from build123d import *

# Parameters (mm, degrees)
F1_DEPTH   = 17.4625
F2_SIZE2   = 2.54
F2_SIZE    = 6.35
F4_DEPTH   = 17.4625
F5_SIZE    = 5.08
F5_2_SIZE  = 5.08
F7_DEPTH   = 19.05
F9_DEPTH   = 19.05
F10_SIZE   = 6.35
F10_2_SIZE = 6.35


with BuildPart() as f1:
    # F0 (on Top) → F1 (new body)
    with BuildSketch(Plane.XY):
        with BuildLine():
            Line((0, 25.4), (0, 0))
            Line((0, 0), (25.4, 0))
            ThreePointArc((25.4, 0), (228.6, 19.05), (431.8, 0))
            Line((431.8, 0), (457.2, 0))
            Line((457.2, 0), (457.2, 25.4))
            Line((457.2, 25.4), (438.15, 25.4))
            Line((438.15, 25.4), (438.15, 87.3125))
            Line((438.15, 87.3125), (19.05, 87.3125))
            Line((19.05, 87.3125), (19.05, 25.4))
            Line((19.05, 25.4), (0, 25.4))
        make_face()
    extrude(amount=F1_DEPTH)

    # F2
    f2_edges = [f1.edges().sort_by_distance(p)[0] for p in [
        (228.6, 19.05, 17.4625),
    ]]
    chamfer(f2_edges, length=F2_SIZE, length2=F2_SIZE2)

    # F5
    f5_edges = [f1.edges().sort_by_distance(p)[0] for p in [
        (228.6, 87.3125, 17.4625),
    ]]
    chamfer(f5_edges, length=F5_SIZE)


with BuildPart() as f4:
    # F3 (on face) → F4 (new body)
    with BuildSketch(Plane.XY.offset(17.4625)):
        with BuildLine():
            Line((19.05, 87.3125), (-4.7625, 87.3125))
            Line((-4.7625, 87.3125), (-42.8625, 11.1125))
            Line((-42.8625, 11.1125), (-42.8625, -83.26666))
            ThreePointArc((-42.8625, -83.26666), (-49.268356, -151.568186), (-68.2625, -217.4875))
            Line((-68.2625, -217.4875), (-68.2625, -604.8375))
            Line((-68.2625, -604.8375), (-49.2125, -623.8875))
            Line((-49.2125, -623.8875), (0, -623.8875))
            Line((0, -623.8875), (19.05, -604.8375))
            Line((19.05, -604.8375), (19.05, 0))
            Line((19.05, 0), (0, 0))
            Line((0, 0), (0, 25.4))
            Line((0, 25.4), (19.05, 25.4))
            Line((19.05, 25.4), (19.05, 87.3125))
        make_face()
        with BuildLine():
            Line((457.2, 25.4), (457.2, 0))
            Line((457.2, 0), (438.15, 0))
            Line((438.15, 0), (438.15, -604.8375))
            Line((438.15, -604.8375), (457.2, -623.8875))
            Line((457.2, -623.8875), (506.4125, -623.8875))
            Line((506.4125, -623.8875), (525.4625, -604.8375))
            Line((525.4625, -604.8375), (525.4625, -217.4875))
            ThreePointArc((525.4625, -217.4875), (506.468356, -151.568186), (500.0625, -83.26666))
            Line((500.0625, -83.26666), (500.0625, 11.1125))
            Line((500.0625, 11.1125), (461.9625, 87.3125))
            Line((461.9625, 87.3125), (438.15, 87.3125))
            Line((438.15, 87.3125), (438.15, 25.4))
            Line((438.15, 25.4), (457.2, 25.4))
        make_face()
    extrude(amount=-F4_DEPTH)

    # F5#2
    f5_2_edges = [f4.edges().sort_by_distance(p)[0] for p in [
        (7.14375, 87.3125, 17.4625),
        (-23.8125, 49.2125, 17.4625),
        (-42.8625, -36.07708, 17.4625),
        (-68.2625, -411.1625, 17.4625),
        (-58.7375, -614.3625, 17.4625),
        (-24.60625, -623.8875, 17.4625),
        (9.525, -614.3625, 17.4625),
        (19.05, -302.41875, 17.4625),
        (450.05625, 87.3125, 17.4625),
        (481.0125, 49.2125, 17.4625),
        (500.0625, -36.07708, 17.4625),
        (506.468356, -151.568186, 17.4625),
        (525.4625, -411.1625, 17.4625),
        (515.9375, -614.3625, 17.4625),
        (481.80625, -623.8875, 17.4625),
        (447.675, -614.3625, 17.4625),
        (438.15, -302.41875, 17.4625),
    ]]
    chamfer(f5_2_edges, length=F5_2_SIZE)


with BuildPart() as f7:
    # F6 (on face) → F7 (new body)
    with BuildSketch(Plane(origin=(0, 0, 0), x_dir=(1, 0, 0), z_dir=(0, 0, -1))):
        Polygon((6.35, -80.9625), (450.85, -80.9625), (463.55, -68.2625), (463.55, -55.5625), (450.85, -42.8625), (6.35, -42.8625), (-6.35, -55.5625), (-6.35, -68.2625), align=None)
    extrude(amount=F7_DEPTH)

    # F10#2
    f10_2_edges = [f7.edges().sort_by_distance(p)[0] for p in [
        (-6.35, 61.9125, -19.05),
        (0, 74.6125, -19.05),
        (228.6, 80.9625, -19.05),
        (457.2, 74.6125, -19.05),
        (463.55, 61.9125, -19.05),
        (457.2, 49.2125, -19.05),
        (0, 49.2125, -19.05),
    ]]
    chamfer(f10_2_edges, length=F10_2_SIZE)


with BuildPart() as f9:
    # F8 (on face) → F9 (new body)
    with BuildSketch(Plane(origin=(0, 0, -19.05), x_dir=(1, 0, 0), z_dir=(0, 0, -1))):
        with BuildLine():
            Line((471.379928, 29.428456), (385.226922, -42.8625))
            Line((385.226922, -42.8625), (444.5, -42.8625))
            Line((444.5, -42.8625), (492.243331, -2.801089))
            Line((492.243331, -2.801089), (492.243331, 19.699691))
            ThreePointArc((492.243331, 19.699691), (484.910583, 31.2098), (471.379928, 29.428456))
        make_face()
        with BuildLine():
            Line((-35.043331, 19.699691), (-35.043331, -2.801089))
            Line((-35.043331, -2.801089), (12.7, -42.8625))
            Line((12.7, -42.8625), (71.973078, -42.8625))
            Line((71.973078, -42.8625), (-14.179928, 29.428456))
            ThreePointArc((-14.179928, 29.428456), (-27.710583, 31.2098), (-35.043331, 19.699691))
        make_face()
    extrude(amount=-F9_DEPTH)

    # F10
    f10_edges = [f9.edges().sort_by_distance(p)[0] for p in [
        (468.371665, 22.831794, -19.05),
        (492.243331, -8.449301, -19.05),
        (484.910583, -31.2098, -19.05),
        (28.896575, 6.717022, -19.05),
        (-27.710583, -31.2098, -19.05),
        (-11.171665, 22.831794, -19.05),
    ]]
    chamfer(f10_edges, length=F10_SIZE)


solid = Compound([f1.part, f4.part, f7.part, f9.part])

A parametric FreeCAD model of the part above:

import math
import FreeCAD as App
import Part
import Sketcher
from FreeCAD import Vector
Q = App.Units.Quantity


def edges_at(feature, points):
    """Names of the edges that pass closest to the given points."""
    edges = feature.Shape.Edges
    near = lambda p: min(range(len(edges)), key=lambda i: edges[i].distToShape(Part.Vertex(*p))[0])
    return sorted({f"Edge{near(p) + 1}" for p in points})


def add_polygon(sketch, points):
    """Adds a closed chain of lines whose ends are joined by coincident constraints."""
    first, n = sketch.GeometryCount, len(points)
    for a, b in zip(points, points[1:] + points[:1]):
        sketch.addGeometry(Part.LineSegment(App.Vector(*a, 0), App.Vector(*b, 0)), False)
    for i in range(n):
        sketch.addConstraint(Sketcher.Constraint("Coincident", first + i, 2, first + (i + 1) % n, 1))

doc = App.newDocument("Part")
body = doc.addObject("PartDesign::Body", "Body")

sketch1 = body.newObject("Sketcher::SketchObject", "Sketch")
sketch1.AttachmentSupport = (doc.getObject("XY_Plane"), [""])
sketch1.MapMode = "FlatFace"
sketch1.addGeometry([
    Part.LineSegment(Vector(0, 25, 0), Vector(0, 0, 0)),
    Part.LineSegment(Vector(0, 0, 0), Vector(25, 0, 0)),
    Part.ArcOfCircle(Part.Circle(Vector(229, -1074, 0), Vector(0, 0, 1), 1093), math.radians(79), math.radians(101)),
    Part.LineSegment(Vector(432, 0, 0), Vector(457, 0, 0)),
    Part.LineSegment(Vector(457, 0, 0), Vector(457, 25, 0)),
    Part.LineSegment(Vector(457, 25, 0), Vector(438, 25, 0)),
    Part.LineSegment(Vector(438, 25, 0), Vector(438, 87, 0)),
    Part.LineSegment(Vector(438, 87, 0), Vector(19, 87, 0)),
    Part.LineSegment(Vector(19, 87, 0), Vector(19, 25, 0)),
    Part.LineSegment(Vector(19, 25, 0), Vector(0, 25, 0)),
], False)
sketch1.addConstraint([
    Sketcher.Constraint("Coincident", 0, 2, 1, 1),
    Sketcher.Constraint("Coincident", 1, 2, 2, 2),
    Sketcher.Constraint("Coincident", 2, 1, 3, 1),
    Sketcher.Constraint("Coincident", 3, 2, 4, 1),
    Sketcher.Constraint("Coincident", 4, 2, 5, 1),
    Sketcher.Constraint("Coincident", 5, 2, 6, 1),
    Sketcher.Constraint("Coincident", 6, 2, 7, 1),
    Sketcher.Constraint("Coincident", 7, 2, 8, 1),
    Sketcher.Constraint("Coincident", 8, 2, 9, 1),
    Sketcher.Constraint("Coincident", 9, 2, 0, 1),
    Sketcher.Constraint("Vertical", 0),
    Sketcher.Constraint("Horizontal", 1),
    Sketcher.Constraint("Horizontal", 3),
    Sketcher.Constraint("Vertical", 4),
    Sketcher.Constraint("Horizontal", 5),
    Sketcher.Constraint("Vertical", 6),
    Sketcher.Constraint("Horizontal", 7),
    Sketcher.Constraint("Vertical", 8),
    Sketcher.Constraint("Horizontal", 9),
    Sketcher.Constraint("Coincident", 0, 2, -1, 1),
    Sketcher.Constraint("PointOnObject", 3, 2, -1),
    Sketcher.Constraint("Horizontal", 5, 2, 8, 2),
    Sketcher.Constraint("Equal", 1, 3),
    Sketcher.Constraint("Equal", 5, 9),
    Sketcher.Constraint("Equal", 3, 0),
    Sketcher.Constraint("DistanceX", 1, 1, 1, 2, Q("1 in")),
    Sketcher.Constraint("DistanceX", 7, 2, 7, 1, Q("16.5 in")),
    Sketcher.Constraint("DistanceX", -1, 1, 2, 3, Q("9 in")),
    Sketcher.Constraint("DistanceY", 6, 1, 6, 2, Q("2.4375 in")),
    Sketcher.Constraint("Radius", 2, Q("1093.258333 mm")),
])
pad1 = body.newObject("PartDesign::Pad", "Pad")
pad1.Profile = sketch1
pad1.Length = Q("0.6875 in")
doc.recompute()

chamfer = body.newObject("PartDesign::Chamfer", "Chamfer")
chamfer.Base = (pad1, edges_at(pad1, [(228.6, 19.05, 17.462)]))
chamfer.ChamferType = "Two distances"
chamfer.Size = Q("0.25 in")
chamfer.Size2 = Q("0.1 in")
doc.recompute()

chamfer2 = body.newObject("PartDesign::Chamfer", "Chamfer001")
chamfer2.Base = (chamfer, edges_at(chamfer, [(228.6, 87.312, 17.462)]))
chamfer2.Size = Q("0.2 in")
body2 = doc.addObject("PartDesign::Body", "Body001")
body2.AllowCompound = True

sketch2 = body2.newObject("Sketcher::SketchObject", "Sketch001")
sketch2.AttachmentSupport = (doc.getObject("XY_Plane001"), [""])
sketch2.MapMode = "FlatFace"
sketch2.AttachmentOffset = App.Placement(Vector(0, 0, 0.6875 * 25.4), App.Rotation())
sketch2.addGeometry([
    Part.LineSegment(Vector(19, 87, 0), Vector(-5, 87, 0)),
    Part.LineSegment(Vector(-5, 87, 0), Vector(-43, 11, 0)),
    Part.LineSegment(Vector(-43, 11, 0), Vector(-43, -83, 0)),
    Part.ArcOfCircle(Part.Circle(Vector(-410, -83, 0), Vector(0, 0, 1), 367), math.radians(-21), math.radians(0)),
    Part.LineSegment(Vector(-68, -217, 0), Vector(-68, -605, 0)),
    Part.LineSegment(Vector(-68, -605, 0), Vector(-49, -624, 0)),
    Part.LineSegment(Vector(-49, -624, 0), Vector(0, -624, 0)),
    Part.LineSegment(Vector(0, -624, 0), Vector(19, -605, 0)),
    Part.LineSegment(Vector(19, -605, 0), Vector(19, 0, 0)),
    Part.LineSegment(Vector(19, 0, 0), Vector(0, 0, 0)),
    Part.LineSegment(Vector(0, 0, 0), Vector(0, 25, 0)),
    Part.LineSegment(Vector(0, 25, 0), Vector(19, 25, 0)),
    Part.LineSegment(Vector(19, 25, 0), Vector(19, 87, 0)),
    Part.LineSegment(Vector(457, 25, 0), Vector(457, 0, 0)),
    Part.LineSegment(Vector(457, 0, 0), Vector(438, 0, 0)),
    Part.LineSegment(Vector(438, 0, 0), Vector(438, -605, 0)),
    Part.LineSegment(Vector(438, -605, 0), Vector(457, -624, 0)),
    Part.LineSegment(Vector(457, -624, 0), Vector(506, -624, 0)),
    Part.LineSegment(Vector(506, -624, 0), Vector(525, -605, 0)),
    Part.LineSegment(Vector(525, -605, 0), Vector(525, -217, 0)),
    Part.ArcOfCircle(Part.Circle(Vector(867, -83, 0), Vector(0, 0, 1), 367), math.radians(-180), math.radians(-159)),
    Part.LineSegment(Vector(500, -83, 0), Vector(500, 11, 0)),
    Part.LineSegment(Vector(500, 11, 0), Vector(462, 87, 0)),
    Part.LineSegment(Vector(462, 87, 0), Vector(438, 87, 0)),
    Part.LineSegment(Vector(438, 87, 0), Vector(438, 25, 0)),
    Part.LineSegment(Vector(438, 25, 0), Vector(457, 25, 0)),
], False)
sketch2.addConstraint([
    Sketcher.Constraint("Coincident", 0, 2, 1, 1),
    Sketcher.Constraint("Coincident", 1, 2, 2, 1),
    Sketcher.Constraint("Tangent", 2, 2, 3, 2),
    Sketcher.Constraint("Coincident", 3, 1, 4, 1),
    Sketcher.Constraint("Coincident", 4, 2, 5, 1),
    Sketcher.Constraint("Coincident", 5, 2, 6, 1),
    Sketcher.Constraint("Coincident", 6, 2, 7, 1),
    Sketcher.Constraint("Coincident", 7, 2, 8, 1),
    Sketcher.Constraint("Coincident", 8, 2, 9, 1),
    Sketcher.Constraint("Coincident", 9, 2, 10, 1),
    Sketcher.Constraint("Coincident", 10, 2, 11, 1),
    Sketcher.Constraint("Coincident", 11, 2, 12, 1),
    Sketcher.Constraint("Coincident", 12, 2, 0, 1),
    Sketcher.Constraint("Coincident", 13, 2, 14, 1),
    Sketcher.Constraint("Coincident", 14, 2, 15, 1),
    Sketcher.Constraint("Coincident", 15, 2, 16, 1),
    Sketcher.Constraint("Coincident", 16, 2, 17, 1),
    Sketcher.Constraint("Coincident", 17, 2, 18, 1),
    Sketcher.Constraint("Coincident", 18, 2, 19, 1),
    Sketcher.Constraint("Coincident", 19, 2, 20, 2),
    Sketcher.Constraint("Tangent", 20, 1, 21, 1),
    Sketcher.Constraint("Coincident", 21, 2, 22, 1),
    Sketcher.Constraint("Coincident", 22, 2, 23, 1),
    Sketcher.Constraint("Coincident", 23, 2, 24, 1),
    Sketcher.Constraint("Coincident", 24, 2, 25, 1),
    Sketcher.Constraint("Coincident", 25, 2, 13, 1),
    Sketcher.Constraint("Horizontal", 0),
    Sketcher.Constraint("Vertical", 2),
    Sketcher.Constraint("Vertical", 4),
    Sketcher.Constraint("Horizontal", 6),
    Sketcher.Constraint("Vertical", 8),
    Sketcher.Constraint("Horizontal", 9),
    Sketcher.Constraint("Vertical", 10),
    Sketcher.Constraint("Horizontal", 11),
    Sketcher.Constraint("Vertical", 12),
    Sketcher.Constraint("Vertical", 13),
    Sketcher.Constraint("Horizontal", 14),
    Sketcher.Constraint("Vertical", 15),
    Sketcher.Constraint("Horizontal", 17),
    Sketcher.Constraint("Vertical", 19),
    Sketcher.Constraint("Vertical", 21),
    Sketcher.Constraint("Horizontal", 23),
    Sketcher.Constraint("Vertical", 24),
    Sketcher.Constraint("Horizontal", 25),
    Sketcher.Constraint("Coincident", 9, 2, -1, 1),
    Sketcher.Constraint("Equal", 3, 20),
    Sketcher.Constraint("PointOnObject", 6, 2, -2),
    Sketcher.Constraint("PointOnObject", 13, 2, -1),
    Sketcher.Constraint("Perpendicular", 5, 7),
    Sketcher.Constraint("Perpendicular", 7, 16),
    Sketcher.Constraint("Perpendicular", 16, 18),
    Sketcher.Constraint("Horizontal", 3, 3, 20, 3),
    Sketcher.Constraint("Horizontal", 4, 2, 7, 2),
    Sketcher.Constraint("Horizontal", 7, 2, 15, 2),
    Sketcher.Constraint("Horizontal", 6, 2, 16, 2),
    Sketcher.Constraint("Horizontal", 15, 2, 18, 2),
    Sketcher.Constraint("Horizontal", 3, 1, 19, 2),
    Sketcher.Constraint("Horizontal", 1, 2, 21, 2),
    Sketcher.Constraint("Horizontal", 12, 2, 22, 2),
    Sketcher.Constraint("Horizontal", 11, 2, 24, 2),
    Sketcher.Constraint("Vertical", 8, 2, 11, 2),
    Sketcher.Constraint("Vertical", 13, 2, 16, 2),
    Sketcher.Constraint("Vertical", 15, 2, 23, 2),
    Sketcher.Constraint("Equal", 11, 14),
    Sketcher.Constraint("Equal", 6, 17),
    Sketcher.Constraint("Equal", 0, 23),
    Sketcher.Constraint("DistanceY", 10, 1, 10, 2, Q("1 in")),
    Sketcher.Constraint("DistanceX", -1, 1, 13, 2, Q("18 in")),
    Sketcher.Constraint("DistanceY", 1, 2, 0, 2, Q("3 in")),
    Sketcher.Constraint("DistanceX", 3, 1, 2, 2, Q("1 in")),
    Sketcher.Constraint("DistanceY", 5, 2, 1, 2, Q("25 in")),
    Sketcher.Constraint("DistanceY", 19, 2, 21, 2, Q("9 in")),
    Sketcher.Constraint("DistanceX", 9, 2, 9, 1, Q("0.75 in")),
    Sketcher.Constraint("DistanceX", 1, 2, 0, 2, Q("1.5 in")),
    Sketcher.Constraint("DistanceX", 0, 2, 0, 1, Q("0.9375 in")),
    Sketcher.Constraint("DistanceY", 8, 1, 8, 2, Q("23.8125 in")),
    Sketcher.Constraint("Radius", 3, Q("367.330609 mm")),
])
pad2 = body2.newObject("PartDesign::Pad", "Pad001")
pad2.Profile = sketch2
pad2.Length = Q("0.6875 in")
pad2.Reversed = True
doc.recompute()

chamfer3 = body2.newObject("PartDesign::Chamfer", "Chamfer002")
chamfer3.Base = (pad2, edges_at(pad2, [
    (7.144, 87.312, 17.462),
    (-23.812, 49.212, 17.462),
    (-42.862, -36.077, 17.462),
    (-68.263, -411.163, 17.462),
    (-58.737, -614.362, 17.462),
    (-24.606, -623.888, 17.462),
    (9.525, -614.362, 17.462),
    (19.05, -302.419, 17.462),
    (450.056, 87.312, 17.462),
    (481.012, 49.212, 17.462),
    (500.062, -36.077, 17.462),
    (506.468, -151.568, 17.462),
    (525.462, -411.163, 17.462),
    (515.938, -614.362, 17.462),
    (481.806, -623.888, 17.462),
    (447.675, -614.362, 17.462),
    (438.15, -302.419, 17.462),
]))
chamfer3.Size = Q("0.2 in")
body3 = doc.addObject("PartDesign::Body", "Body002")

sketch3 = body3.newObject("Sketcher::SketchObject", "Sketch002")
sketch3.AttachmentSupport = (doc.getObject("XY_Plane002"), [""])
sketch3.MapMode = "FlatFace"
add_polygon(sketch3, [(6, 81), (451, 81), (464, 68), (464, 56), (451, 43), (6, 43), (-6, 56), (-6, 68)])
sketch3.addConstraint([
    Sketcher.Constraint("Horizontal", 0),
    Sketcher.Constraint("Vertical", 2),
    Sketcher.Constraint("Horizontal", 4),
    Sketcher.Constraint("Vertical", 6),
    Sketcher.Constraint("Perpendicular", 1, 3),
    Sketcher.Constraint("Perpendicular", 3, 5),
    Sketcher.Constraint("Perpendicular", 5, 7),
    Sketcher.Constraint("Horizontal", 2, 2, 5, 2),
    Sketcher.Constraint("Horizontal", 1, 2, 6, 2),
    Sketcher.Constraint("Vertical", 0, 2, 3, 2),
    Sketcher.Constraint("Vertical", 4, 2, 7, 2),
    Sketcher.Constraint("DistanceX", 0, 1, 0, 2, Q("17.5 in")),
    Sketcher.Constraint("DistanceY", 2, 2, 2, 1, Q("0.5 in")),
    Sketcher.Constraint("DistanceY", 2, 2, 0, 2, Q("1 in")),
    Sketcher.Constraint("DistanceX", -1, 1, 0, 2, Q("17.75 in")),
    Sketcher.Constraint("DistanceY", -1, 1, 0, 2, Q("3.1875 in")),
])
pad3 = body3.newObject("PartDesign::Pad", "Pad002")
pad3.Profile = sketch3
pad3.Length = Q("0.75 in")
pad3.Reversed = True
doc.recompute()

chamfer4 = body3.newObject("PartDesign::Chamfer", "Chamfer003")
chamfer4.Base = (pad3, edges_at(pad3, [
    (-6.35, 61.913, -19.05),
    (0, 74.612, -19.05),
    (228.6, 80.963, -19.05),
    (457.2, 74.612, -19.05),
    (463.55, 61.913, -19.05),
    (457.2, 49.212, -19.05),
    (0, 49.212, -19.05),
]))
chamfer4.Size = Q("0.25 in")
body4 = doc.addObject("PartDesign::Body", "Body003")
body4.AllowCompound = True

sketch4 = body4.newObject("Sketcher::SketchObject", "Sketch003")
sketch4.AttachmentSupport = (doc.getObject("XY_Plane003"), [""])
sketch4.MapMode = "FlatFace"
sketch4.AttachmentOffset = App.Placement(Vector(0, 0, -0.75 * 25.4), App.Rotation())
sketch4.addGeometry([
    Part.LineSegment(Vector(471, -29, 0), Vector(385, 43, 0)),
    Part.LineSegment(Vector(385, 43, 0), Vector(444, 43, 0)),
    Part.LineSegment(Vector(444, 43, 0), Vector(492, 3, 0)),
    Part.LineSegment(Vector(492, 3, 0), Vector(492, -20, 0)),
    Part.ArcOfCircle(Part.Circle(Vector(480, -20, 0), Vector(0, 0, 1), 13), math.radians(-130), math.radians(0)),
    Part.LineSegment(Vector(-35, -20, 0), Vector(-35, 3, 0)),
    Part.LineSegment(Vector(-35, 3, 0), Vector(13, 43, 0)),
    Part.LineSegment(Vector(13, 43, 0), Vector(72, 43, 0)),
    Part.LineSegment(Vector(72, 43, 0), Vector(-14, -29, 0)),
    Part.ArcOfCircle(Part.Circle(Vector(-22, -20, 0), Vector(0, 0, 1), 13), math.radians(-180), math.radians(-50)),
], False)
sketch4.addConstraint([
    Sketcher.Constraint("Coincident", 0, 2, 1, 1),
    Sketcher.Constraint("Coincident", 1, 2, 2, 1),
    Sketcher.Constraint("Coincident", 2, 2, 3, 1),
    Sketcher.Constraint("Tangent", 3, 2, 4, 2),
    Sketcher.Constraint("Tangent", 4, 1, 0, 1),
    Sketcher.Constraint("Coincident", 5, 2, 6, 1),
    Sketcher.Constraint("Coincident", 6, 2, 7, 1),
    Sketcher.Constraint("Coincident", 7, 2, 8, 1),
    Sketcher.Constraint("Tangent", 8, 2, 9, 2),
    Sketcher.Constraint("Tangent", 9, 1, 5, 1),
    Sketcher.Constraint("Horizontal", 1),
    Sketcher.Constraint("Vertical", 3),
    Sketcher.Constraint("Vertical", 5),
    Sketcher.Constraint("Horizontal", 7),
    Sketcher.Constraint("Equal", 4, 9),
    Sketcher.Constraint("Parallel", 0, 2),
    Sketcher.Constraint("Parallel", 6, 8),
    Sketcher.Constraint("Horizontal", 4, 3, 9, 3),
    Sketcher.Constraint("Horizontal", 2, 2, 5, 2),
    Sketcher.Constraint("Horizontal", 1, 2, 6, 2),
    Sketcher.Constraint("Horizontal", 4, 1, 8, 2),
    Sketcher.Constraint("Radius", 4, Q("0.5 in")),
    Sketcher.Constraint("Angle", 0, Q("140 deg")),
    Sketcher.Constraint("DistanceX", 6, 2, 1, 2, Q("17 in")),
    Sketcher.Constraint("DistanceX", -1, 1, 1, 2, Q("17.5 in")),
    Sketcher.Constraint("DistanceY", -1, 1, 0, 2, Q("1.6875 in")),
    Sketcher.Constraint("DistanceY", 3, 2, 3, 1, Q("22.50078 mm")),
    Sketcher.Constraint("DistanceX", -1, 1, 4, 3, Q("479.543331 mm")),
])
pad4 = body4.newObject("PartDesign::Pad", "Pad003")
pad4.Profile = sketch4
pad4.Length = Q("0.75 in")
doc.recompute()

chamfer5 = body4.newObject("PartDesign::Chamfer", "Chamfer004")
chamfer5.Base = (pad4, edges_at(pad4, [
    (468.372, 22.832, -19.05),
    (492.243, -8.449, -19.05),
    (484.911, -31.21, -19.05),
    (28.897, 6.717, -19.05),
    (-27.711, -31.21, -19.05),
    (-11.172, 22.832, -19.05),
]))
chamfer5.Size = Q("0.25 in")

doc.recompute()
